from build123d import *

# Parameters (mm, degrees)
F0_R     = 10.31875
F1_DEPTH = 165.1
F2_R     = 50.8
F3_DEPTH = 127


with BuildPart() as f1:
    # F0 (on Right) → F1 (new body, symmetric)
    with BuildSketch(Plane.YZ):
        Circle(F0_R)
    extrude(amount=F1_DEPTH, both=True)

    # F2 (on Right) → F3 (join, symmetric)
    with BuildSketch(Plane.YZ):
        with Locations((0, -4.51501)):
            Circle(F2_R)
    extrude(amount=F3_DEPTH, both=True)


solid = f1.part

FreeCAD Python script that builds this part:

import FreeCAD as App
import Part
import Sketcher

V = App.Vector
Q = App.Units.Quantity

doc = App.newDocument("Part")
body = doc.addObject("PartDesign::Body", "Body")

# Sketch on YZ plane
sketch1 = doc.addObject("Sketcher::SketchObject", "Sketch")
body.addObject(sketch1)
sketch1.AttachmentSupport = (doc.YZ_Plane, [""])
sketch1.MapMode = "FlatFace"
sketch1.addGeometry(Part.Circle(V(0, 0, 0), V(0, 0, 1), 10.31875), False)
sketch1.addConstraint([
    Sketcher.Constraint("Coincident", 0, 3, -1, 1),
    Sketcher.Constraint("Diameter", 0, Q("0.8125 in")),
])
pad1 = doc.addObject("PartDesign::Pad", "Pad")
body.addObject(pad1)
pad1.Profile = sketch1
pad1.Length = Q("13 in")
pad1.Midplane = True

# Sketch on YZ plane
sketch2 = doc.addObject("Sketcher::SketchObject", "Sketch001")
body.addObject(sketch2)
sketch2.AttachmentSupport = (doc.YZ_Plane, [""])
sketch2.MapMode = "FlatFace"
sketch2.addGeometry(Part.Circle(V(0, -4.51501, 0), V(0, 0, 1), 50.8), False)
sketch2.addConstraint([
    Sketcher.Constraint("PointOnObject", 0, 3, -2),
    Sketcher.Constraint("Diameter", 0, Q("4 in")),
    Sketcher.Constraint("DistanceY", 0, 3, -1, 1, Q("4.51501 mm")),
])
pad2 = doc.addObject("PartDesign::Pad", "Pad001")
body.addObject(pad2)
pad2.Profile = sketch2
pad2.Length = Q("10 in")
pad2.Midplane = True

doc.recompute()
